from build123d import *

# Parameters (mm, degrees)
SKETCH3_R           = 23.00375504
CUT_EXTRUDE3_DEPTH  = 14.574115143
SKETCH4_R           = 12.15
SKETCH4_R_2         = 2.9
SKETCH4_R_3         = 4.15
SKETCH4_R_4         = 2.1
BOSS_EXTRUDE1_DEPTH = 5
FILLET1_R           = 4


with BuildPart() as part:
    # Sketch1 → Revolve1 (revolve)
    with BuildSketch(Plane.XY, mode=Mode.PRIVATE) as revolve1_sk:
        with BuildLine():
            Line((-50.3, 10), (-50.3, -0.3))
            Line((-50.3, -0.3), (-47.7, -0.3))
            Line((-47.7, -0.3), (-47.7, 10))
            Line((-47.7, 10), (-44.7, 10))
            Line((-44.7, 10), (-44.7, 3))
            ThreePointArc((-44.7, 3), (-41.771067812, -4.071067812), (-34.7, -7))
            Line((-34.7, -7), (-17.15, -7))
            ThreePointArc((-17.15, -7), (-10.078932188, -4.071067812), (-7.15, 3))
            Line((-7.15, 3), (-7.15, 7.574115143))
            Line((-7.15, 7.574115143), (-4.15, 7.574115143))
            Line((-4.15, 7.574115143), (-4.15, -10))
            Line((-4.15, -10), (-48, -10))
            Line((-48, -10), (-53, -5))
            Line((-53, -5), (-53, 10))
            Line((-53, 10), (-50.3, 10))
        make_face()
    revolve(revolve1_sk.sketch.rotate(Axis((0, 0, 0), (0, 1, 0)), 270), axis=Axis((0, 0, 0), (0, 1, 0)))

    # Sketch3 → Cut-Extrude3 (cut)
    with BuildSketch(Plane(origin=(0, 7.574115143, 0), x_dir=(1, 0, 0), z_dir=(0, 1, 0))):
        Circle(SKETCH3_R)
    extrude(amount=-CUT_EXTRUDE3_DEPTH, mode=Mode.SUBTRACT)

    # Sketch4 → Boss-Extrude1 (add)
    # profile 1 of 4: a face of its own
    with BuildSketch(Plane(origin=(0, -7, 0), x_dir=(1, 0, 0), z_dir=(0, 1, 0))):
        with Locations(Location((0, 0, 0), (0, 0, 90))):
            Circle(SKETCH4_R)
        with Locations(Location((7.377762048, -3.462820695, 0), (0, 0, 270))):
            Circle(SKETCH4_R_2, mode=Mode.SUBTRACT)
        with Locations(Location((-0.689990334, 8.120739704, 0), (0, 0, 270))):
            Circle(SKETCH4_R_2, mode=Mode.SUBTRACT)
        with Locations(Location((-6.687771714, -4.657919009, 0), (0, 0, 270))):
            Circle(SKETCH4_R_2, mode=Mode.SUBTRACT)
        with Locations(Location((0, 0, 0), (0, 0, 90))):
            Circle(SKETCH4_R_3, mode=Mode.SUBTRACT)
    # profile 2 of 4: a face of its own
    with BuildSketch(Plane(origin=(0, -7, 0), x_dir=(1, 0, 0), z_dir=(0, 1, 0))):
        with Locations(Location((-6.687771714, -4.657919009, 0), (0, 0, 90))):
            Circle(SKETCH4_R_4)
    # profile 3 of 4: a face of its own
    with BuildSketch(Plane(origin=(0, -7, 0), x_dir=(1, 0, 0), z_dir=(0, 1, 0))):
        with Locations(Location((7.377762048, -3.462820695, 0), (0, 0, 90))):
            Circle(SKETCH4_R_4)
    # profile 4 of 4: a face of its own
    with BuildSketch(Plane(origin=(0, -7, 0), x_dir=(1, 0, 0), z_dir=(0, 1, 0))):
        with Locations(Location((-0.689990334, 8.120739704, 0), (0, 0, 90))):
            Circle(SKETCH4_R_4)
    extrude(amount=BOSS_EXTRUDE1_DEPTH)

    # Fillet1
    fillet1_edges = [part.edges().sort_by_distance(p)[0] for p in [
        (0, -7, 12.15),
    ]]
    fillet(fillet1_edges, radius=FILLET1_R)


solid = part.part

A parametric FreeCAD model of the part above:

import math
import FreeCAD as App
import Part
import Sketcher

V = App.Vector
Q = App.Units.Quantity


def edges_at(feature, points):
    """Names of the edges that pass closest to the given points."""
    edges = feature.Shape.Edges
    near = lambda p: min(range(len(edges)), key=lambda i: edges[i].distToShape(Part.Vertex(*p))[0])
    return sorted({f"Edge{near(p) + 1}" for p in points})

doc = App.newDocument("Part")
params = doc.addObject("Spreadsheet::Sheet", "Params")
for row, (alias, value) in enumerate([
    ("sketch1_radius", "10 mm"),
    ("sketch1_width", "3 mm"),
    ("sketch1_height", "15 mm"),
    ("sketch1_height2", "7 mm"),
    ("sketch1_width2", "2.7 mm"),
    ("revolution_angle", "360 deg"),
    ("pocket1_length", "14.574115 mm"),
    ("sketch3_diameter", "24.3 mm"),
    ("sketch3_diameter2", "5.8 mm"),
    ("sketch3_diameter3", "8.3 mm"),
    ("sketch3_diameter4", "4.2 mm"),
    ("pad1_length", "5 mm"),
    ("fillet_radius", "4 mm"),
], start=1):
    params.set(f"A{row}", alias)
    params.set(f"B{row}", "=" + value)
    params.setAlias(f"B{row}", alias)

body = doc.addObject("PartDesign::Body", "Body")

sketch1 = body.newObject("Sketcher::SketchObject", "Sketch")
sketch1.AttachmentSupport = (doc.getObject("XY_Plane"), [""])
sketch1.MapMode = "FlatFace"
sketch1.addGeometry([
    Part.LineSegment(V(-50.3, -0.3, 0), V(-50.3, 10, 0)),
    Part.LineSegment(V(-50.3, 10, 0), V(-53, 10, 0)),
    Part.LineSegment(V(-53, 10, 0), V(-53, -5, 0)),
    Part.LineSegment(V(-53, -5, 0), V(-48, -10, 0)),
    Part.LineSegment(V(-48, -10, 0), V(-4.2, -10, 0)),
    Part.LineSegment(V(-4.2, -10, 0), V(-4.2, 7.6, 0)),
    Part.LineSegment(V(-4.2, 7.6, 0), V(-7.2, 7.6, 0)),
    Part.LineSegment(V(-7.2, 7.6, 0), V(-7.2, 3, 0)),
    Part.ArcOfCircle(Part.Circle(V(-17.1, 3, 0), V(0, 0, 1), 10), math.radians(-90), math.radians(0)),
    Part.LineSegment(V(-17.1, -7, 0), V(-34.7, -7, 0)),
    Part.ArcOfCircle(Part.Circle(V(-34.7, 3, 0), V(0, 0, 1), 10), math.radians(180), math.radians(270)),
    Part.LineSegment(V(-44.7, 3, 0), V(-44.7, 10, 0)),
    Part.LineSegment(V(-44.7, 10, 0), V(-47.7, 10, 0)),
    Part.LineSegment(V(-47.7, 10, 0), V(-47.7, -0.3, 0)),
    Part.LineSegment(V(-47.7, -0.3, 0), V(-50.3, -0.3, 0)),
], False)
sketch1.addConstraint([
    Sketcher.Constraint("Coincident", 0, 2, 1, 1),
    Sketcher.Constraint("Coincident", 1, 2, 2, 1),
    Sketcher.Constraint("Coincident", 2, 2, 3, 1),
    Sketcher.Constraint("Coincident", 3, 2, 4, 1),
    Sketcher.Constraint("Coincident", 4, 2, 5, 1),
    Sketcher.Constraint("Coincident", 5, 2, 6, 1),
    Sketcher.Constraint("Coincident", 6, 2, 7, 1),
    Sketcher.Constraint("Tangent", 7, 2, 8, 2),
    Sketcher.Constraint("Tangent", 8, 1, 9, 1),
    Sketcher.Constraint("Tangent", 9, 2, 10, 2),
    Sketcher.Constraint("Tangent", 10, 1, 11, 1),
    Sketcher.Constraint("Coincident", 11, 2, 12, 1),
    Sketcher.Constraint("Coincident", 12, 2, 13, 1),
    Sketcher.Constraint("Coincident", 13, 2, 14, 1),
    Sketcher.Constraint("Coincident", 14, 2, 0, 1),
    Sketcher.Constraint("Vertical", 0),
    Sketcher.Constraint("Horizontal", 1),
    Sketcher.Constraint("Vertical", 2),
    Sketcher.Constraint("Horizontal", 4),
    Sketcher.Constraint("Vertical", 5),
    Sketcher.Constraint("Horizontal", 6),
    Sketcher.Constraint("Vertical", 7),
    Sketcher.Constraint("Horizontal", 9),
    Sketcher.Constraint("Vertical", 11),
    Sketcher.Constraint("Horizontal", 12),
    Sketcher.Constraint("Vertical", 13),
    Sketcher.Constraint("Horizontal", 14),
    Sketcher.Constraint("Equal", 8, 10),
    Sketcher.Constraint("Horizontal", 1, 2, 11, 2),
    Sketcher.Constraint("Equal", 6, 12),
    Sketcher.Constraint("Radius", 8, 10.0),
    Sketcher.Constraint("DistanceX", 6, 2, 6, 1, 3.0),
    Sketcher.Constraint("DistanceY", 2, 2, 2, 1, 15.0),
    Sketcher.Constraint("DistanceY", 11, 1, 11, 2, 7.0),
    Sketcher.Constraint("Angle", 3, Q("-45 deg")),
    Sketcher.Constraint("DistanceX", 1, 2, 1, 1, 2.7),
    Sketcher.Constraint("DistanceX", 14, 2, 14, 1, 2.6),
    Sketcher.Constraint("DistanceY", 0, 1, 0, 2, 10.3),
    Sketcher.Constraint("DistanceY", -1, 1, 8, 3, 3.0),
    Sketcher.Constraint("DistanceX", 1, 2, -1, 1, 53.0),
    Sketcher.Constraint("DistanceX", 3, 2, -1, 1, 48.0),
    Sketcher.Constraint("DistanceX", 4, 1, 4, 2, 43.85),
    Sketcher.Constraint("DistanceY", 5, 1, 5, 2, 17.574115),
])
sketch1.setExpression("Constraints[30]", "Params.sketch1_radius")
sketch1.setExpression("Constraints[31]", "Params.sketch1_width")
sketch1.setExpression("Constraints[32]", "Params.sketch1_height")
sketch1.setExpression("Constraints[33]", "Params.sketch1_height2")
sketch1.setExpression("Constraints[35]", "Params.sketch1_width2")
revolution = body.newObject("PartDesign::Revolution", "Revolution")
revolution.Profile = sketch1
revolution.ReferenceAxis = (sketch1, ["V_Axis"])
revolution.setExpression("Angle", "Params.revolution_angle")

sketch2 = body.newObject("Sketcher::SketchObject", "Sketch001")
sketch2.AttachmentSupport = (doc.getObject("XZ_Plane"), [""])
sketch2.MapMode = "FlatFace"
sketch2.AttachmentOffset = App.Placement(V(0, 0, -7.574115), App.Rotation())
sketch2.addGeometry(Part.Circle(V(0, 0, 0), V(0, 0, 1), 23), False)
sketch2.addConstraint([
    Sketcher.Constraint("Coincident", 0, 3, -1, 1),
    Sketcher.Constraint("Diameter", 0, 46.00751),
])
pocket1 = body.newObject("PartDesign::Pocket", "Pocket")
pocket1.Profile = sketch2
pocket1.setExpression("Length", "Params.pocket1_length")
pocket1.Reversed = True

sketch3 = body.newObject("Sketcher::SketchObject", "Sketch002")
sketch3.AttachmentSupport = (doc.getObject("XZ_Plane"), [""])
sketch3.MapMode = "FlatFace"
sketch3.AttachmentOffset = App.Placement(V(0, 0, 7), App.Rotation())
sketch3.addGeometry([
    Part.Circle(V(0, 0, 0), V(0, 0, 1), 12.2),
    Part.Circle(V(7.4, 3.5, 0), V(0, 0, 1), 2.9),
    Part.Circle(V(0, 0, 0), V(0, 0, 1), 4.2),
    Part.Circle(V(-6.7, 4.7, 0), V(0, 0, 1), 2.9),
    Part.Circle(V(-0.7, -8.1, 0), V(0, 0, 1), 2.9),
    Part.Circle(V(-6.7, 4.7, 0), V(0, 0, 1), 2.1),
    Part.Circle(V(7.4, 3.5, 0), V(0, 0, 1), 2.1),
    Part.Circle(V(-0.7, -8.1, 0), V(0, 0, 1), 2.1),
], False)
sketch3.addConstraint([
    Sketcher.Constraint("Coincident", 0, 3, -1, 1),
    Sketcher.Constraint("Coincident", 2, 3, -1, 1),
    Sketcher.Constraint("Coincident", 5, 3, 3, 3),
    Sketcher.Constraint("Coincident", 6, 3, 1, 3),
    Sketcher.Constraint("Coincident", 7, 3, 4, 3),
    Sketcher.Constraint("Equal", 1, 3),
    Sketcher.Constraint("Equal", 3, 4),
    Sketcher.Constraint("Equal", 5, 6),
    Sketcher.Constraint("Equal", 6, 7),
    Sketcher.Constraint("Diameter", 0, 24.3),
    Sketcher.Constraint("Diameter", 1, 5.8),
    Sketcher.Constraint("Diameter", 2, 8.3),
    Sketcher.Constraint("Diameter", 5, 4.2),
    Sketcher.Constraint("DistanceY", 1, 3, 3, 3, 1.195098),
    Sketcher.Constraint("DistanceY", -1, 1, 1, 3, 3.462821),
    Sketcher.Constraint("DistanceX", 3, 3, -1, 1, 6.687772),
    Sketcher.Constraint("DistanceX", 4, 3, -1, 1, 0.68999),
    Sketcher.Constraint("DistanceY", 4, 3, -1, 1, 8.12074),
    Sketcher.Constraint("DistanceX", -1, 1, 1, 3, 7.377762),
])
sketch3.setExpression("Constraints[9]", "Params.sketch3_diameter")
sketch3.setExpression("Constraints[10]", "Params.sketch3_diameter2")
sketch3.setExpression("Constraints[11]", "Params.sketch3_diameter3")
sketch3.setExpression("Constraints[12]", "Params.sketch3_diameter4")
pad1 = body.newObject("PartDesign::Pad", "Pad")
pad1.Profile = sketch3
pad1.setExpression("Length", "Params.pad1_length")
pad1.Reversed = True
doc.recompute()

fillet = body.newObject("PartDesign::Fillet", "Fillet")
fillet.Base = (pad1, edges_at(pad1, [(0, -7, 12.15)]))
fillet.setExpression("Radius", "Params.fillet_radius")

doc.recompute()
